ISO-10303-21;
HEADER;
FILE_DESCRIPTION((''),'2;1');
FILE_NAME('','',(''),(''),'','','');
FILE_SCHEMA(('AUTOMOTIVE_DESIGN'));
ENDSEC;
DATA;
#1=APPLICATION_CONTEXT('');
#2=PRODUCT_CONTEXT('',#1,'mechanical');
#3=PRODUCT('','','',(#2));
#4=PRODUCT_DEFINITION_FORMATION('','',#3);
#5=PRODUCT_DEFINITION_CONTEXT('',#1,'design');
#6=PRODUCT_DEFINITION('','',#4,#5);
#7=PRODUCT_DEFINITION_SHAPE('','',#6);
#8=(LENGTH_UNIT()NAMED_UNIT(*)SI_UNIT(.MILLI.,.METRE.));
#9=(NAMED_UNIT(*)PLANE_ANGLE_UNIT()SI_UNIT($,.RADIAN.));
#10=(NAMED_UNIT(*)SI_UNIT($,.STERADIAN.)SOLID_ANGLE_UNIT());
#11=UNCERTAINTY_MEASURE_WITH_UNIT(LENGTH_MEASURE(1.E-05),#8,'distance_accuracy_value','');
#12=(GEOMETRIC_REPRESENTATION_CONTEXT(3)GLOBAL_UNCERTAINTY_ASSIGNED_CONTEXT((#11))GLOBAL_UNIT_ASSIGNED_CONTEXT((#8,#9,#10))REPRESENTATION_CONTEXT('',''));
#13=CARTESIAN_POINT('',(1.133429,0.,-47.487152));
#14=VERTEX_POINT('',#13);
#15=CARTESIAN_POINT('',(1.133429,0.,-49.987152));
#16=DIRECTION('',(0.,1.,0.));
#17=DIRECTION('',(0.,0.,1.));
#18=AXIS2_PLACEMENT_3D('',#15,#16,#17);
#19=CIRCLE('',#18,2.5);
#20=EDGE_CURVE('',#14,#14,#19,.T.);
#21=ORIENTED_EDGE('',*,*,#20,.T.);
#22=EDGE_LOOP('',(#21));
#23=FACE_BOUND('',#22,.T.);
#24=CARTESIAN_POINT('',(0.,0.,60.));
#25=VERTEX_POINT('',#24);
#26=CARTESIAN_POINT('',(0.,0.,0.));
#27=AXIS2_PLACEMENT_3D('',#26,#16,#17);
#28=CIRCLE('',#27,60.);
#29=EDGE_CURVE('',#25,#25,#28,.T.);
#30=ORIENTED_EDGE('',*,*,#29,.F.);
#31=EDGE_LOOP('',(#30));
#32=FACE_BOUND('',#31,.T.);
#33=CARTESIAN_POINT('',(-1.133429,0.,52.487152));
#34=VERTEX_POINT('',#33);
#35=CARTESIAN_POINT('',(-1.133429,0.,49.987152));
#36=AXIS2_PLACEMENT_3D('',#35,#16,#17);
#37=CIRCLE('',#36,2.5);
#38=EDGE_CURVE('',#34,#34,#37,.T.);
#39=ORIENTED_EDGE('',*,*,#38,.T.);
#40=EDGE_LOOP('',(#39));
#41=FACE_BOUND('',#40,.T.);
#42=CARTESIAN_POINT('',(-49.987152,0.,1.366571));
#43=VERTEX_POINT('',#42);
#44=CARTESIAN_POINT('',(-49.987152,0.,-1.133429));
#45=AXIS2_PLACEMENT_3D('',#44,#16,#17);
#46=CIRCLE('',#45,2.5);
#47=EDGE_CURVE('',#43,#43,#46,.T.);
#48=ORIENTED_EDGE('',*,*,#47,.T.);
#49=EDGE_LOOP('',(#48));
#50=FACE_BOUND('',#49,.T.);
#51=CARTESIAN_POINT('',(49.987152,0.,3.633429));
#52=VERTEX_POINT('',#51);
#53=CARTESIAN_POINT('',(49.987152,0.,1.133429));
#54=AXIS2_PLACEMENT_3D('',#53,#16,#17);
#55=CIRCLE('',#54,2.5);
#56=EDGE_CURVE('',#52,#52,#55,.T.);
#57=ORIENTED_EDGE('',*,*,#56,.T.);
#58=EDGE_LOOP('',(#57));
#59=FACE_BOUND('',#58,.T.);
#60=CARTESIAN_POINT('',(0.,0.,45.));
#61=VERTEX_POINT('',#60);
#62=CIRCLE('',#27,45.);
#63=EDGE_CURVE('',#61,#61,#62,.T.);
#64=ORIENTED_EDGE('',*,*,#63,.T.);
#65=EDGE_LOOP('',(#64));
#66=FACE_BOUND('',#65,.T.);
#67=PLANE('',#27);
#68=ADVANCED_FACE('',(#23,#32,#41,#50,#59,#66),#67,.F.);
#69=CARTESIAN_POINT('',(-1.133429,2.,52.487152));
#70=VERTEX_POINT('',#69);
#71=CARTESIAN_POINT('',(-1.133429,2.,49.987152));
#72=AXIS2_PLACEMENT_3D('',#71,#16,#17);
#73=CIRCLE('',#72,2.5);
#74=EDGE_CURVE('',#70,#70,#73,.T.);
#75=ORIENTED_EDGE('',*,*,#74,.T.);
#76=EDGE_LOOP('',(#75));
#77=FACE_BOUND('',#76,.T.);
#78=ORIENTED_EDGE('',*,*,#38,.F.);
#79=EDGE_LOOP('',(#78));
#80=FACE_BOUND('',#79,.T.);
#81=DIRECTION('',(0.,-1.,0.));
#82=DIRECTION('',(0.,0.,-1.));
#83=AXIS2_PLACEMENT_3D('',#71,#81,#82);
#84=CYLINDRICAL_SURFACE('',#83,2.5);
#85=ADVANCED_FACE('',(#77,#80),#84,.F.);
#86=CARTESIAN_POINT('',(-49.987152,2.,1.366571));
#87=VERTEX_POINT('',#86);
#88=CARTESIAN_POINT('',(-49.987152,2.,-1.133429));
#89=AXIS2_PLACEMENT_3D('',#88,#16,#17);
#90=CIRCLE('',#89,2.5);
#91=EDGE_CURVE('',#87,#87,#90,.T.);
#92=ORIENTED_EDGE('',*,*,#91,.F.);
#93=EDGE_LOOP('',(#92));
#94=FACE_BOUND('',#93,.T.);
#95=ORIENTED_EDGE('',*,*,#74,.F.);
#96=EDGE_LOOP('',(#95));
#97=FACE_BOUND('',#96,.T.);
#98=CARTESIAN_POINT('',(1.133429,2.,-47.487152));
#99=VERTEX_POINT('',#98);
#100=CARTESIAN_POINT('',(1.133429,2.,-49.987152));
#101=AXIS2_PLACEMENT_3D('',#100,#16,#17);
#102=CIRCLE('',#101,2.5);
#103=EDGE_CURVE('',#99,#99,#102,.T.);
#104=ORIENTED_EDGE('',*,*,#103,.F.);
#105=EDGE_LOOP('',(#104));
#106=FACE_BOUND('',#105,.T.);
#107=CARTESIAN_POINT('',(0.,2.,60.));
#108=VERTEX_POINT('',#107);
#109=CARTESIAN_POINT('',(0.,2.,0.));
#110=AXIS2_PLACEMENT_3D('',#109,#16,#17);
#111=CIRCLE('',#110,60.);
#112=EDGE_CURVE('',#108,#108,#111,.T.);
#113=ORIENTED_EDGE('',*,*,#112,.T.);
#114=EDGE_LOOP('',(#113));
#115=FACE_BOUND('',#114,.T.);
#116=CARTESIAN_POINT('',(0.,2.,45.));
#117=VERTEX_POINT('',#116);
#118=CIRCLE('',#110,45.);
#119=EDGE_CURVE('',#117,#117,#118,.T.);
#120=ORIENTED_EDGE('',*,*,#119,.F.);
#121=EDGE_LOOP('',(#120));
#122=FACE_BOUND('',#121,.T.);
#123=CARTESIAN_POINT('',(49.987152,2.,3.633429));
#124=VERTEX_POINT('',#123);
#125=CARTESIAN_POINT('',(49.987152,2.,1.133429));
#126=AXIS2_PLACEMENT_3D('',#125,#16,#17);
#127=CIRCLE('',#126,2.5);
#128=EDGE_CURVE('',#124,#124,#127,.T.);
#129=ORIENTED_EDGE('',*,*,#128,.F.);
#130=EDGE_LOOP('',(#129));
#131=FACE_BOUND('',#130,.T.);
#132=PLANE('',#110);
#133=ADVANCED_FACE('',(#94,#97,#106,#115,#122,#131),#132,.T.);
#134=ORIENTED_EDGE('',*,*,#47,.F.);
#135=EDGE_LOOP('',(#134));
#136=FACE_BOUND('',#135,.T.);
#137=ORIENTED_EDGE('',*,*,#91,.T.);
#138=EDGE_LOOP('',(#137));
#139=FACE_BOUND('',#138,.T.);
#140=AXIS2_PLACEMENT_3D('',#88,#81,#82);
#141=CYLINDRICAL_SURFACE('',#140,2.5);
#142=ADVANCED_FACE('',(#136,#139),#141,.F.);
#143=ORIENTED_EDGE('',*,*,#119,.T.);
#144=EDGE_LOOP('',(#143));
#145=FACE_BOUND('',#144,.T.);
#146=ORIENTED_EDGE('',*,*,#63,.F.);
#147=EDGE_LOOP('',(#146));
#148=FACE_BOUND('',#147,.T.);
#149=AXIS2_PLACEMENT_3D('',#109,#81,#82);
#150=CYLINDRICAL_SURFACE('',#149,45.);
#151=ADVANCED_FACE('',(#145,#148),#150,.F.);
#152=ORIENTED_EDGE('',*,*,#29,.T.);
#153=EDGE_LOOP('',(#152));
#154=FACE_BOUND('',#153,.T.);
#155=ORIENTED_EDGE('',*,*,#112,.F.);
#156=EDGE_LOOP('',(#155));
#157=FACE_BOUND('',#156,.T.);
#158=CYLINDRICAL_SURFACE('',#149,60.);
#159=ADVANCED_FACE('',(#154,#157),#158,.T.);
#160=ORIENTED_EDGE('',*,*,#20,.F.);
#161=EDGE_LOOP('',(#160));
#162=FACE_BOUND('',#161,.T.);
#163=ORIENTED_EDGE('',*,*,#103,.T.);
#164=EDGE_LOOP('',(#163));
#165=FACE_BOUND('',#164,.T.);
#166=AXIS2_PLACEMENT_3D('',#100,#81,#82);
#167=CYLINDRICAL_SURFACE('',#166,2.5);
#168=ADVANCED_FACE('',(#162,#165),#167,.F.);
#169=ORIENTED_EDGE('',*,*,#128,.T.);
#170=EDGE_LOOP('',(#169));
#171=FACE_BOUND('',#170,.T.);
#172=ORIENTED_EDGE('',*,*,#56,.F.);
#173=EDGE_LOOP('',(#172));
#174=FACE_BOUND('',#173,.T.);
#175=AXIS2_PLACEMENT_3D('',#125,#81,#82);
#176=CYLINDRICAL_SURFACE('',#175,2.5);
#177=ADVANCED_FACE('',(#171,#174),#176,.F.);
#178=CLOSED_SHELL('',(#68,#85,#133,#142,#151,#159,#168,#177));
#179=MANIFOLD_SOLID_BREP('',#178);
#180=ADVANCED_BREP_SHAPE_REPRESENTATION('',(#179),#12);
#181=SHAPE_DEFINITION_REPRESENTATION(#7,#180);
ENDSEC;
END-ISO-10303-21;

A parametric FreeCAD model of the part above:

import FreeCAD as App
import Part
import Sketcher

V = App.Vector

doc = App.newDocument("Part")
params = doc.addObject("Spreadsheet::Sheet", "Params")
for row, (alias, value) in enumerate([
    ("sketch1_diameter", "120 mm"),
    ("sketch1_diameter2", "5 mm"),
    ("sketch1_diameter3", "90 mm"),
    ("pad1_length", "2 mm"),
], start=1):
    params.set(f"A{row}", alias)
    params.set(f"B{row}", "=" + value)
    params.setAlias(f"B{row}", alias)

body = doc.addObject("PartDesign::Body", "Body")

# Sketch on XZ plane
sketch1 = doc.addObject("Sketcher::SketchObject", "Sketch")
body.addObject(sketch1)
sketch1.AttachmentSupport = (doc.XZ_Plane, [""])
sketch1.MapMode = "FlatFace"
sketch1.addGeometry([
    Part.Circle(V(0, 0, 0), V(0, 0, 1), 60),  # 0
    Part.Circle(V(-50, -1.1, 0), V(0, 0, 1), 2.5),  # 1
    Part.Circle(V(0, 0, 0), V(0, 0, 1), 45),  # 2
    Part.Circle(V(-1.1, 50, 0), V(0, 0, 1), 2.5),  # 3
    Part.Circle(V(1.1, -50, 0), V(0, 0, 1), 2.5),  # 4
    Part.Circle(V(50, 1.1, 0), V(0, 0, 1), 2.5),  # 5
], False)
sketch1.addConstraint([
    Sketcher.Constraint("Coincident", 0, 3, -1, 1),
    Sketcher.Constraint("Coincident", 2, 3, -1, 1),
    Sketcher.Constraint("Equal", 1, 3),
    Sketcher.Constraint("Equal", 3, 4),
    Sketcher.Constraint("Equal", 4, 5),
    Sketcher.Constraint("Symmetric", 3, 3, 4, 3, -1, 1),
    Sketcher.Constraint("Symmetric", 1, 3, 5, 3, -1, 1),
    Sketcher.Constraint("Diameter", 0, 120.0),
    Sketcher.Constraint("Diameter", 1, 5.0),
    Sketcher.Constraint("Diameter", 2, 90.0),
    Sketcher.Constraint("DistanceX", 1, 3, -1, 1, 49.987152),
    Sketcher.Constraint("DistanceY", 1, 3, -1, 1, 1.133429),
    Sketcher.Constraint("DistanceX", 3, 3, -1, 1, 1.133429),
    Sketcher.Constraint("DistanceY", -1, 1, 3, 3, 49.987152),
])
sketch1.setExpression("Constraints[7]", "Params.sketch1_diameter")
sketch1.setExpression("Constraints[8]", "Params.sketch1_diameter2")
sketch1.setExpression("Constraints[9]", "Params.sketch1_diameter3")
pad1 = doc.addObject("PartDesign::Pad", "Pad")
body.addObject(pad1)
pad1.Profile = sketch1
pad1.setExpression("Length", "Params.pad1_length")
pad1.Reversed = True

doc.recompute()
